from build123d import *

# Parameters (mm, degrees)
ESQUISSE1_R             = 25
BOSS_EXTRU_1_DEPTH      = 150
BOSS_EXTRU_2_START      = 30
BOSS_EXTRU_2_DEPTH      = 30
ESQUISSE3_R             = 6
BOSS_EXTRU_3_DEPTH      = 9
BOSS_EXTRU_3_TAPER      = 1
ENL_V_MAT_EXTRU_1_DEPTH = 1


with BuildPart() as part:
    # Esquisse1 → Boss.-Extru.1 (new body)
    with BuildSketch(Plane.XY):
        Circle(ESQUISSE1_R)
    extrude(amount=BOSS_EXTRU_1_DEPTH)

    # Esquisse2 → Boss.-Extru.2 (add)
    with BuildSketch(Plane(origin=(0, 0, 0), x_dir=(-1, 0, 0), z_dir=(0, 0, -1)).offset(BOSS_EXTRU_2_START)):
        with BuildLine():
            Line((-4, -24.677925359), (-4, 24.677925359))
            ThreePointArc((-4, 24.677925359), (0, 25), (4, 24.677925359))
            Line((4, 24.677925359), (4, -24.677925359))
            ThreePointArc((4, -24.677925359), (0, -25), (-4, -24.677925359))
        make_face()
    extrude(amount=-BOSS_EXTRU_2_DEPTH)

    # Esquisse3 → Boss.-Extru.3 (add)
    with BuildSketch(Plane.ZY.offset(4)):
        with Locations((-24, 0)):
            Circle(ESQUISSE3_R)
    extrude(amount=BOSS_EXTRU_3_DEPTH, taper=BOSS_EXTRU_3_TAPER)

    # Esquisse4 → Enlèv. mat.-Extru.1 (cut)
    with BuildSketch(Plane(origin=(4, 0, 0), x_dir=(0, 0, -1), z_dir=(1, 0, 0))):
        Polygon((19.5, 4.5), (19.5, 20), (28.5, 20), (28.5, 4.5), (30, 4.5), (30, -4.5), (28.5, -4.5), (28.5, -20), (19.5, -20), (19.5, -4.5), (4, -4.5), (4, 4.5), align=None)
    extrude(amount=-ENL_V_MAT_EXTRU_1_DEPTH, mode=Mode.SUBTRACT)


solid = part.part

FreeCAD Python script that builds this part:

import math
import FreeCAD as App
import Part
import Sketcher
from FreeCAD import Vector
Q = App.Units.Quantity

doc = App.newDocument("Part")
body = doc.addObject("PartDesign::Body", "Body")

# Sketch on XY plane
sketch1 = body.newObject("Sketcher::SketchObject", "Sketch")
sketch1.AttachmentSupport = (doc.getObject("XY_Plane"), [""])
sketch1.MapMode = "FlatFace"
sketch1.addGeometry(Part.Circle(Vector(0, 0, 0), Vector(0, 0, 1), 25), False)
sketch1.addConstraint([
    Sketcher.Constraint("Coincident", 0, 3, -1, 1),
    Sketcher.Constraint("Diameter", 0, Q("50 mm")),
])
pad1 = body.newObject("PartDesign::Pad", "Pad")
pad1.Profile = sketch1
pad1.Length = 150

# Sketch on XY plane
sketch2 = body.newObject("Sketcher::SketchObject", "Sketch001")
sketch2.AttachmentSupport = (doc.getObject("XY_Plane"), [""])
sketch2.MapMode = "FlatFace"
sketch2.AttachmentOffset = App.Placement(Vector(0, 0, -30), App.Rotation())
sketch2.addGeometry([
    Part.LineSegment(Vector(4, 24.677925, 0), Vector(4, -24.677925, 0)),
    Part.ArcOfCircle(Part.Circle(Vector(0, 0, 0), Vector(0, 0, 1), 25), math.radians(-99.206896), math.radians(-80.793104)),
    Part.LineSegment(Vector(-4, -24.677925, 0), Vector(-4, 24.677925, 0)),
    Part.ArcOfCircle(Part.Circle(Vector(0, 0, 0), Vector(0, 0, 1), 25), math.radians(80.793104), math.radians(99.206896)),
], False)
sketch2.addConstraint([
    Sketcher.Constraint("Coincident", 0, 2, 1, 2),
    Sketcher.Constraint("Coincident", 1, 1, 2, 1),
    Sketcher.Constraint("Coincident", 2, 2, 3, 2),
    Sketcher.Constraint("Coincident", 3, 1, 0, 1),
    Sketcher.Constraint("Vertical", 0),
    Sketcher.Constraint("Vertical", 2),
    Sketcher.Constraint("Coincident", 1, 3, -1, 1),
    Sketcher.Constraint("Coincident", 3, 3, -1, 1),
    Sketcher.Constraint("Equal", 1, 3),
    Sketcher.Constraint("Horizontal", 0, 2, 1, 1),
    Sketcher.Constraint("Radius", 1, Q("25 mm")),
    Sketcher.Constraint("DistanceX", -1, 1, 0, 2, Q("4 mm")),
])
pad2 = body.newObject("PartDesign::Pad", "Pad001")
pad2.Profile = sketch2
pad2.Length = 30

# Sketch on YZ plane
sketch3 = body.newObject("Sketcher::SketchObject", "Sketch002")
sketch3.AttachmentSupport = (doc.getObject("YZ_Plane"), [""])
sketch3.MapMode = "FlatFace"
sketch3.AttachmentOffset = App.Placement(Vector(0, 0, -4), App.Rotation())
sketch3.addGeometry(Part.Circle(Vector(0, -24, 0), Vector(0, 0, 1), 6), False)
sketch3.addConstraint([
    Sketcher.Constraint("PointOnObject", 0, 3, -2),
    Sketcher.Constraint("Diameter", 0, Q("12 mm")),
    Sketcher.Constraint("DistanceY", 0, 3, -1, 1, Q("24 mm")),
])
pad3 = body.newObject("PartDesign::Pad", "Pad002")
pad3.Profile = sketch3
pad3.Length = 9
pad3.Reversed = True
pad3.TaperAngle = -1

# Sketch on YZ plane
sketch4 = body.newObject("Sketcher::SketchObject", "Sketch003")
sketch4.AttachmentSupport = (doc.getObject("YZ_Plane"), [""])
sketch4.MapMode = "FlatFace"
sketch4.AttachmentOffset = App.Placement(Vector(0, 0, 4), App.Rotation())
sketch4.addGeometry([
    Part.LineSegment(Vector(20, -19.5, 0), Vector(4.5, -19.5, 0)),  # 0
    Part.LineSegment(Vector(4.5, -19.5, 0), Vector(4.5, -4, 0)),  # 1
    Part.LineSegment(Vector(4.5, -4, 0), Vector(-4.5, -4, 0)),  # 2
    Part.LineSegment(Vector(-4.5, -4, 0), Vector(-4.5, -19.5, 0)),  # 3
    Part.LineSegment(Vector(-4.5, -19.5, 0), Vector(-20, -19.5, 0)),  # 4
    Part.LineSegment(Vector(-20, -19.5, 0), Vector(-20, -28.5, 0)),  # 5
    Part.LineSegment(Vector(-20, -28.5, 0), Vector(-4.5, -28.5, 0)),  # 6
    Part.LineSegment(Vector(-4.5, -28.5, 0), Vector(-4.5, -30, 0)),  # 7
    Part.LineSegment(Vector(-4.5, -30, 0), Vector(4.5, -30, 0)),  # 8
    Part.LineSegment(Vector(4.5, -30, 0), Vector(4.5, -28.5, 0)),  # 9
    Part.LineSegment(Vector(4.5, -28.5, 0), Vector(20, -28.5, 0)),  # 10
    Part.LineSegment(Vector(20, -28.5, 0), Vector(20, -19.5, 0)),  # 11
], False)
sketch4.addConstraint([
    Sketcher.Constraint("Coincident", 0, 2, 1, 1),
    Sketcher.Constraint("Coincident", 1, 2, 2, 1),
    Sketcher.Constraint("Coincident", 2, 2, 3, 1),
    Sketcher.Constraint("Coincident", 3, 2, 4, 1),
    Sketcher.Constraint("Coincident", 4, 2, 5, 1),
    Sketcher.Constraint("Coincident", 5, 2, 6, 1),
    Sketcher.Constraint("Coincident", 6, 2, 7, 1),
    Sketcher.Constraint("Coincident", 7, 2, 8, 1),
    Sketcher.Constraint("Coincident", 8, 2, 9, 1),
    Sketcher.Constraint("Coincident", 9, 2, 10, 1),
    Sketcher.Constraint("Coincident", 10, 2, 11, 1),
    Sketcher.Constraint("Coincident", 11, 2, 0, 1),
    Sketcher.Constraint("Horizontal", 0),
    Sketcher.Constraint("Vertical", 1),
    Sketcher.Constraint("Horizontal", 2),
    Sketcher.Constraint("Vertical", 3),
    Sketcher.Constraint("Horizontal", 4),
    Sketcher.Constraint("Vertical", 5),
    Sketcher.Constraint("Horizontal", 6),
    Sketcher.Constraint("Vertical", 7),
    Sketcher.Constraint("Horizontal", 8),
    Sketcher.Constraint("Vertical", 9),
    Sketcher.Constraint("Horizontal", 10),
    Sketcher.Constraint("Vertical", 11),
    Sketcher.Constraint("Symmetric", 0, 2, 3, 2, -2),
    Sketcher.Constraint("Symmetric", 6, 2, 9, 2, -2),
    Sketcher.Constraint("Vertical", 3, 2, 6, 2),
    Sketcher.Constraint("Equal", 0, 4),
    Sketcher.Constraint("Equal", 10, 1),
    Sketcher.Constraint("Equal", 8, 5),
    Sketcher.Constraint("DistanceX", 2, 2, 2, 1, Q("9 mm")),
    Sketcher.Constraint("DistanceX", 0, 2, 0, 1, Q("15.5 mm")),
    Sketcher.Constraint("DistanceY", 7, 2, 7, 1, Q("1.5 mm")),
    Sketcher.Constraint("DistanceY", 1, 2, -1, 1, Q("4 mm")),
])
pocket1 = body.newObject("PartDesign::Pocket", "Pocket")
pocket1.Profile = sketch4
pocket1.Length = 1

doc.recompute()
